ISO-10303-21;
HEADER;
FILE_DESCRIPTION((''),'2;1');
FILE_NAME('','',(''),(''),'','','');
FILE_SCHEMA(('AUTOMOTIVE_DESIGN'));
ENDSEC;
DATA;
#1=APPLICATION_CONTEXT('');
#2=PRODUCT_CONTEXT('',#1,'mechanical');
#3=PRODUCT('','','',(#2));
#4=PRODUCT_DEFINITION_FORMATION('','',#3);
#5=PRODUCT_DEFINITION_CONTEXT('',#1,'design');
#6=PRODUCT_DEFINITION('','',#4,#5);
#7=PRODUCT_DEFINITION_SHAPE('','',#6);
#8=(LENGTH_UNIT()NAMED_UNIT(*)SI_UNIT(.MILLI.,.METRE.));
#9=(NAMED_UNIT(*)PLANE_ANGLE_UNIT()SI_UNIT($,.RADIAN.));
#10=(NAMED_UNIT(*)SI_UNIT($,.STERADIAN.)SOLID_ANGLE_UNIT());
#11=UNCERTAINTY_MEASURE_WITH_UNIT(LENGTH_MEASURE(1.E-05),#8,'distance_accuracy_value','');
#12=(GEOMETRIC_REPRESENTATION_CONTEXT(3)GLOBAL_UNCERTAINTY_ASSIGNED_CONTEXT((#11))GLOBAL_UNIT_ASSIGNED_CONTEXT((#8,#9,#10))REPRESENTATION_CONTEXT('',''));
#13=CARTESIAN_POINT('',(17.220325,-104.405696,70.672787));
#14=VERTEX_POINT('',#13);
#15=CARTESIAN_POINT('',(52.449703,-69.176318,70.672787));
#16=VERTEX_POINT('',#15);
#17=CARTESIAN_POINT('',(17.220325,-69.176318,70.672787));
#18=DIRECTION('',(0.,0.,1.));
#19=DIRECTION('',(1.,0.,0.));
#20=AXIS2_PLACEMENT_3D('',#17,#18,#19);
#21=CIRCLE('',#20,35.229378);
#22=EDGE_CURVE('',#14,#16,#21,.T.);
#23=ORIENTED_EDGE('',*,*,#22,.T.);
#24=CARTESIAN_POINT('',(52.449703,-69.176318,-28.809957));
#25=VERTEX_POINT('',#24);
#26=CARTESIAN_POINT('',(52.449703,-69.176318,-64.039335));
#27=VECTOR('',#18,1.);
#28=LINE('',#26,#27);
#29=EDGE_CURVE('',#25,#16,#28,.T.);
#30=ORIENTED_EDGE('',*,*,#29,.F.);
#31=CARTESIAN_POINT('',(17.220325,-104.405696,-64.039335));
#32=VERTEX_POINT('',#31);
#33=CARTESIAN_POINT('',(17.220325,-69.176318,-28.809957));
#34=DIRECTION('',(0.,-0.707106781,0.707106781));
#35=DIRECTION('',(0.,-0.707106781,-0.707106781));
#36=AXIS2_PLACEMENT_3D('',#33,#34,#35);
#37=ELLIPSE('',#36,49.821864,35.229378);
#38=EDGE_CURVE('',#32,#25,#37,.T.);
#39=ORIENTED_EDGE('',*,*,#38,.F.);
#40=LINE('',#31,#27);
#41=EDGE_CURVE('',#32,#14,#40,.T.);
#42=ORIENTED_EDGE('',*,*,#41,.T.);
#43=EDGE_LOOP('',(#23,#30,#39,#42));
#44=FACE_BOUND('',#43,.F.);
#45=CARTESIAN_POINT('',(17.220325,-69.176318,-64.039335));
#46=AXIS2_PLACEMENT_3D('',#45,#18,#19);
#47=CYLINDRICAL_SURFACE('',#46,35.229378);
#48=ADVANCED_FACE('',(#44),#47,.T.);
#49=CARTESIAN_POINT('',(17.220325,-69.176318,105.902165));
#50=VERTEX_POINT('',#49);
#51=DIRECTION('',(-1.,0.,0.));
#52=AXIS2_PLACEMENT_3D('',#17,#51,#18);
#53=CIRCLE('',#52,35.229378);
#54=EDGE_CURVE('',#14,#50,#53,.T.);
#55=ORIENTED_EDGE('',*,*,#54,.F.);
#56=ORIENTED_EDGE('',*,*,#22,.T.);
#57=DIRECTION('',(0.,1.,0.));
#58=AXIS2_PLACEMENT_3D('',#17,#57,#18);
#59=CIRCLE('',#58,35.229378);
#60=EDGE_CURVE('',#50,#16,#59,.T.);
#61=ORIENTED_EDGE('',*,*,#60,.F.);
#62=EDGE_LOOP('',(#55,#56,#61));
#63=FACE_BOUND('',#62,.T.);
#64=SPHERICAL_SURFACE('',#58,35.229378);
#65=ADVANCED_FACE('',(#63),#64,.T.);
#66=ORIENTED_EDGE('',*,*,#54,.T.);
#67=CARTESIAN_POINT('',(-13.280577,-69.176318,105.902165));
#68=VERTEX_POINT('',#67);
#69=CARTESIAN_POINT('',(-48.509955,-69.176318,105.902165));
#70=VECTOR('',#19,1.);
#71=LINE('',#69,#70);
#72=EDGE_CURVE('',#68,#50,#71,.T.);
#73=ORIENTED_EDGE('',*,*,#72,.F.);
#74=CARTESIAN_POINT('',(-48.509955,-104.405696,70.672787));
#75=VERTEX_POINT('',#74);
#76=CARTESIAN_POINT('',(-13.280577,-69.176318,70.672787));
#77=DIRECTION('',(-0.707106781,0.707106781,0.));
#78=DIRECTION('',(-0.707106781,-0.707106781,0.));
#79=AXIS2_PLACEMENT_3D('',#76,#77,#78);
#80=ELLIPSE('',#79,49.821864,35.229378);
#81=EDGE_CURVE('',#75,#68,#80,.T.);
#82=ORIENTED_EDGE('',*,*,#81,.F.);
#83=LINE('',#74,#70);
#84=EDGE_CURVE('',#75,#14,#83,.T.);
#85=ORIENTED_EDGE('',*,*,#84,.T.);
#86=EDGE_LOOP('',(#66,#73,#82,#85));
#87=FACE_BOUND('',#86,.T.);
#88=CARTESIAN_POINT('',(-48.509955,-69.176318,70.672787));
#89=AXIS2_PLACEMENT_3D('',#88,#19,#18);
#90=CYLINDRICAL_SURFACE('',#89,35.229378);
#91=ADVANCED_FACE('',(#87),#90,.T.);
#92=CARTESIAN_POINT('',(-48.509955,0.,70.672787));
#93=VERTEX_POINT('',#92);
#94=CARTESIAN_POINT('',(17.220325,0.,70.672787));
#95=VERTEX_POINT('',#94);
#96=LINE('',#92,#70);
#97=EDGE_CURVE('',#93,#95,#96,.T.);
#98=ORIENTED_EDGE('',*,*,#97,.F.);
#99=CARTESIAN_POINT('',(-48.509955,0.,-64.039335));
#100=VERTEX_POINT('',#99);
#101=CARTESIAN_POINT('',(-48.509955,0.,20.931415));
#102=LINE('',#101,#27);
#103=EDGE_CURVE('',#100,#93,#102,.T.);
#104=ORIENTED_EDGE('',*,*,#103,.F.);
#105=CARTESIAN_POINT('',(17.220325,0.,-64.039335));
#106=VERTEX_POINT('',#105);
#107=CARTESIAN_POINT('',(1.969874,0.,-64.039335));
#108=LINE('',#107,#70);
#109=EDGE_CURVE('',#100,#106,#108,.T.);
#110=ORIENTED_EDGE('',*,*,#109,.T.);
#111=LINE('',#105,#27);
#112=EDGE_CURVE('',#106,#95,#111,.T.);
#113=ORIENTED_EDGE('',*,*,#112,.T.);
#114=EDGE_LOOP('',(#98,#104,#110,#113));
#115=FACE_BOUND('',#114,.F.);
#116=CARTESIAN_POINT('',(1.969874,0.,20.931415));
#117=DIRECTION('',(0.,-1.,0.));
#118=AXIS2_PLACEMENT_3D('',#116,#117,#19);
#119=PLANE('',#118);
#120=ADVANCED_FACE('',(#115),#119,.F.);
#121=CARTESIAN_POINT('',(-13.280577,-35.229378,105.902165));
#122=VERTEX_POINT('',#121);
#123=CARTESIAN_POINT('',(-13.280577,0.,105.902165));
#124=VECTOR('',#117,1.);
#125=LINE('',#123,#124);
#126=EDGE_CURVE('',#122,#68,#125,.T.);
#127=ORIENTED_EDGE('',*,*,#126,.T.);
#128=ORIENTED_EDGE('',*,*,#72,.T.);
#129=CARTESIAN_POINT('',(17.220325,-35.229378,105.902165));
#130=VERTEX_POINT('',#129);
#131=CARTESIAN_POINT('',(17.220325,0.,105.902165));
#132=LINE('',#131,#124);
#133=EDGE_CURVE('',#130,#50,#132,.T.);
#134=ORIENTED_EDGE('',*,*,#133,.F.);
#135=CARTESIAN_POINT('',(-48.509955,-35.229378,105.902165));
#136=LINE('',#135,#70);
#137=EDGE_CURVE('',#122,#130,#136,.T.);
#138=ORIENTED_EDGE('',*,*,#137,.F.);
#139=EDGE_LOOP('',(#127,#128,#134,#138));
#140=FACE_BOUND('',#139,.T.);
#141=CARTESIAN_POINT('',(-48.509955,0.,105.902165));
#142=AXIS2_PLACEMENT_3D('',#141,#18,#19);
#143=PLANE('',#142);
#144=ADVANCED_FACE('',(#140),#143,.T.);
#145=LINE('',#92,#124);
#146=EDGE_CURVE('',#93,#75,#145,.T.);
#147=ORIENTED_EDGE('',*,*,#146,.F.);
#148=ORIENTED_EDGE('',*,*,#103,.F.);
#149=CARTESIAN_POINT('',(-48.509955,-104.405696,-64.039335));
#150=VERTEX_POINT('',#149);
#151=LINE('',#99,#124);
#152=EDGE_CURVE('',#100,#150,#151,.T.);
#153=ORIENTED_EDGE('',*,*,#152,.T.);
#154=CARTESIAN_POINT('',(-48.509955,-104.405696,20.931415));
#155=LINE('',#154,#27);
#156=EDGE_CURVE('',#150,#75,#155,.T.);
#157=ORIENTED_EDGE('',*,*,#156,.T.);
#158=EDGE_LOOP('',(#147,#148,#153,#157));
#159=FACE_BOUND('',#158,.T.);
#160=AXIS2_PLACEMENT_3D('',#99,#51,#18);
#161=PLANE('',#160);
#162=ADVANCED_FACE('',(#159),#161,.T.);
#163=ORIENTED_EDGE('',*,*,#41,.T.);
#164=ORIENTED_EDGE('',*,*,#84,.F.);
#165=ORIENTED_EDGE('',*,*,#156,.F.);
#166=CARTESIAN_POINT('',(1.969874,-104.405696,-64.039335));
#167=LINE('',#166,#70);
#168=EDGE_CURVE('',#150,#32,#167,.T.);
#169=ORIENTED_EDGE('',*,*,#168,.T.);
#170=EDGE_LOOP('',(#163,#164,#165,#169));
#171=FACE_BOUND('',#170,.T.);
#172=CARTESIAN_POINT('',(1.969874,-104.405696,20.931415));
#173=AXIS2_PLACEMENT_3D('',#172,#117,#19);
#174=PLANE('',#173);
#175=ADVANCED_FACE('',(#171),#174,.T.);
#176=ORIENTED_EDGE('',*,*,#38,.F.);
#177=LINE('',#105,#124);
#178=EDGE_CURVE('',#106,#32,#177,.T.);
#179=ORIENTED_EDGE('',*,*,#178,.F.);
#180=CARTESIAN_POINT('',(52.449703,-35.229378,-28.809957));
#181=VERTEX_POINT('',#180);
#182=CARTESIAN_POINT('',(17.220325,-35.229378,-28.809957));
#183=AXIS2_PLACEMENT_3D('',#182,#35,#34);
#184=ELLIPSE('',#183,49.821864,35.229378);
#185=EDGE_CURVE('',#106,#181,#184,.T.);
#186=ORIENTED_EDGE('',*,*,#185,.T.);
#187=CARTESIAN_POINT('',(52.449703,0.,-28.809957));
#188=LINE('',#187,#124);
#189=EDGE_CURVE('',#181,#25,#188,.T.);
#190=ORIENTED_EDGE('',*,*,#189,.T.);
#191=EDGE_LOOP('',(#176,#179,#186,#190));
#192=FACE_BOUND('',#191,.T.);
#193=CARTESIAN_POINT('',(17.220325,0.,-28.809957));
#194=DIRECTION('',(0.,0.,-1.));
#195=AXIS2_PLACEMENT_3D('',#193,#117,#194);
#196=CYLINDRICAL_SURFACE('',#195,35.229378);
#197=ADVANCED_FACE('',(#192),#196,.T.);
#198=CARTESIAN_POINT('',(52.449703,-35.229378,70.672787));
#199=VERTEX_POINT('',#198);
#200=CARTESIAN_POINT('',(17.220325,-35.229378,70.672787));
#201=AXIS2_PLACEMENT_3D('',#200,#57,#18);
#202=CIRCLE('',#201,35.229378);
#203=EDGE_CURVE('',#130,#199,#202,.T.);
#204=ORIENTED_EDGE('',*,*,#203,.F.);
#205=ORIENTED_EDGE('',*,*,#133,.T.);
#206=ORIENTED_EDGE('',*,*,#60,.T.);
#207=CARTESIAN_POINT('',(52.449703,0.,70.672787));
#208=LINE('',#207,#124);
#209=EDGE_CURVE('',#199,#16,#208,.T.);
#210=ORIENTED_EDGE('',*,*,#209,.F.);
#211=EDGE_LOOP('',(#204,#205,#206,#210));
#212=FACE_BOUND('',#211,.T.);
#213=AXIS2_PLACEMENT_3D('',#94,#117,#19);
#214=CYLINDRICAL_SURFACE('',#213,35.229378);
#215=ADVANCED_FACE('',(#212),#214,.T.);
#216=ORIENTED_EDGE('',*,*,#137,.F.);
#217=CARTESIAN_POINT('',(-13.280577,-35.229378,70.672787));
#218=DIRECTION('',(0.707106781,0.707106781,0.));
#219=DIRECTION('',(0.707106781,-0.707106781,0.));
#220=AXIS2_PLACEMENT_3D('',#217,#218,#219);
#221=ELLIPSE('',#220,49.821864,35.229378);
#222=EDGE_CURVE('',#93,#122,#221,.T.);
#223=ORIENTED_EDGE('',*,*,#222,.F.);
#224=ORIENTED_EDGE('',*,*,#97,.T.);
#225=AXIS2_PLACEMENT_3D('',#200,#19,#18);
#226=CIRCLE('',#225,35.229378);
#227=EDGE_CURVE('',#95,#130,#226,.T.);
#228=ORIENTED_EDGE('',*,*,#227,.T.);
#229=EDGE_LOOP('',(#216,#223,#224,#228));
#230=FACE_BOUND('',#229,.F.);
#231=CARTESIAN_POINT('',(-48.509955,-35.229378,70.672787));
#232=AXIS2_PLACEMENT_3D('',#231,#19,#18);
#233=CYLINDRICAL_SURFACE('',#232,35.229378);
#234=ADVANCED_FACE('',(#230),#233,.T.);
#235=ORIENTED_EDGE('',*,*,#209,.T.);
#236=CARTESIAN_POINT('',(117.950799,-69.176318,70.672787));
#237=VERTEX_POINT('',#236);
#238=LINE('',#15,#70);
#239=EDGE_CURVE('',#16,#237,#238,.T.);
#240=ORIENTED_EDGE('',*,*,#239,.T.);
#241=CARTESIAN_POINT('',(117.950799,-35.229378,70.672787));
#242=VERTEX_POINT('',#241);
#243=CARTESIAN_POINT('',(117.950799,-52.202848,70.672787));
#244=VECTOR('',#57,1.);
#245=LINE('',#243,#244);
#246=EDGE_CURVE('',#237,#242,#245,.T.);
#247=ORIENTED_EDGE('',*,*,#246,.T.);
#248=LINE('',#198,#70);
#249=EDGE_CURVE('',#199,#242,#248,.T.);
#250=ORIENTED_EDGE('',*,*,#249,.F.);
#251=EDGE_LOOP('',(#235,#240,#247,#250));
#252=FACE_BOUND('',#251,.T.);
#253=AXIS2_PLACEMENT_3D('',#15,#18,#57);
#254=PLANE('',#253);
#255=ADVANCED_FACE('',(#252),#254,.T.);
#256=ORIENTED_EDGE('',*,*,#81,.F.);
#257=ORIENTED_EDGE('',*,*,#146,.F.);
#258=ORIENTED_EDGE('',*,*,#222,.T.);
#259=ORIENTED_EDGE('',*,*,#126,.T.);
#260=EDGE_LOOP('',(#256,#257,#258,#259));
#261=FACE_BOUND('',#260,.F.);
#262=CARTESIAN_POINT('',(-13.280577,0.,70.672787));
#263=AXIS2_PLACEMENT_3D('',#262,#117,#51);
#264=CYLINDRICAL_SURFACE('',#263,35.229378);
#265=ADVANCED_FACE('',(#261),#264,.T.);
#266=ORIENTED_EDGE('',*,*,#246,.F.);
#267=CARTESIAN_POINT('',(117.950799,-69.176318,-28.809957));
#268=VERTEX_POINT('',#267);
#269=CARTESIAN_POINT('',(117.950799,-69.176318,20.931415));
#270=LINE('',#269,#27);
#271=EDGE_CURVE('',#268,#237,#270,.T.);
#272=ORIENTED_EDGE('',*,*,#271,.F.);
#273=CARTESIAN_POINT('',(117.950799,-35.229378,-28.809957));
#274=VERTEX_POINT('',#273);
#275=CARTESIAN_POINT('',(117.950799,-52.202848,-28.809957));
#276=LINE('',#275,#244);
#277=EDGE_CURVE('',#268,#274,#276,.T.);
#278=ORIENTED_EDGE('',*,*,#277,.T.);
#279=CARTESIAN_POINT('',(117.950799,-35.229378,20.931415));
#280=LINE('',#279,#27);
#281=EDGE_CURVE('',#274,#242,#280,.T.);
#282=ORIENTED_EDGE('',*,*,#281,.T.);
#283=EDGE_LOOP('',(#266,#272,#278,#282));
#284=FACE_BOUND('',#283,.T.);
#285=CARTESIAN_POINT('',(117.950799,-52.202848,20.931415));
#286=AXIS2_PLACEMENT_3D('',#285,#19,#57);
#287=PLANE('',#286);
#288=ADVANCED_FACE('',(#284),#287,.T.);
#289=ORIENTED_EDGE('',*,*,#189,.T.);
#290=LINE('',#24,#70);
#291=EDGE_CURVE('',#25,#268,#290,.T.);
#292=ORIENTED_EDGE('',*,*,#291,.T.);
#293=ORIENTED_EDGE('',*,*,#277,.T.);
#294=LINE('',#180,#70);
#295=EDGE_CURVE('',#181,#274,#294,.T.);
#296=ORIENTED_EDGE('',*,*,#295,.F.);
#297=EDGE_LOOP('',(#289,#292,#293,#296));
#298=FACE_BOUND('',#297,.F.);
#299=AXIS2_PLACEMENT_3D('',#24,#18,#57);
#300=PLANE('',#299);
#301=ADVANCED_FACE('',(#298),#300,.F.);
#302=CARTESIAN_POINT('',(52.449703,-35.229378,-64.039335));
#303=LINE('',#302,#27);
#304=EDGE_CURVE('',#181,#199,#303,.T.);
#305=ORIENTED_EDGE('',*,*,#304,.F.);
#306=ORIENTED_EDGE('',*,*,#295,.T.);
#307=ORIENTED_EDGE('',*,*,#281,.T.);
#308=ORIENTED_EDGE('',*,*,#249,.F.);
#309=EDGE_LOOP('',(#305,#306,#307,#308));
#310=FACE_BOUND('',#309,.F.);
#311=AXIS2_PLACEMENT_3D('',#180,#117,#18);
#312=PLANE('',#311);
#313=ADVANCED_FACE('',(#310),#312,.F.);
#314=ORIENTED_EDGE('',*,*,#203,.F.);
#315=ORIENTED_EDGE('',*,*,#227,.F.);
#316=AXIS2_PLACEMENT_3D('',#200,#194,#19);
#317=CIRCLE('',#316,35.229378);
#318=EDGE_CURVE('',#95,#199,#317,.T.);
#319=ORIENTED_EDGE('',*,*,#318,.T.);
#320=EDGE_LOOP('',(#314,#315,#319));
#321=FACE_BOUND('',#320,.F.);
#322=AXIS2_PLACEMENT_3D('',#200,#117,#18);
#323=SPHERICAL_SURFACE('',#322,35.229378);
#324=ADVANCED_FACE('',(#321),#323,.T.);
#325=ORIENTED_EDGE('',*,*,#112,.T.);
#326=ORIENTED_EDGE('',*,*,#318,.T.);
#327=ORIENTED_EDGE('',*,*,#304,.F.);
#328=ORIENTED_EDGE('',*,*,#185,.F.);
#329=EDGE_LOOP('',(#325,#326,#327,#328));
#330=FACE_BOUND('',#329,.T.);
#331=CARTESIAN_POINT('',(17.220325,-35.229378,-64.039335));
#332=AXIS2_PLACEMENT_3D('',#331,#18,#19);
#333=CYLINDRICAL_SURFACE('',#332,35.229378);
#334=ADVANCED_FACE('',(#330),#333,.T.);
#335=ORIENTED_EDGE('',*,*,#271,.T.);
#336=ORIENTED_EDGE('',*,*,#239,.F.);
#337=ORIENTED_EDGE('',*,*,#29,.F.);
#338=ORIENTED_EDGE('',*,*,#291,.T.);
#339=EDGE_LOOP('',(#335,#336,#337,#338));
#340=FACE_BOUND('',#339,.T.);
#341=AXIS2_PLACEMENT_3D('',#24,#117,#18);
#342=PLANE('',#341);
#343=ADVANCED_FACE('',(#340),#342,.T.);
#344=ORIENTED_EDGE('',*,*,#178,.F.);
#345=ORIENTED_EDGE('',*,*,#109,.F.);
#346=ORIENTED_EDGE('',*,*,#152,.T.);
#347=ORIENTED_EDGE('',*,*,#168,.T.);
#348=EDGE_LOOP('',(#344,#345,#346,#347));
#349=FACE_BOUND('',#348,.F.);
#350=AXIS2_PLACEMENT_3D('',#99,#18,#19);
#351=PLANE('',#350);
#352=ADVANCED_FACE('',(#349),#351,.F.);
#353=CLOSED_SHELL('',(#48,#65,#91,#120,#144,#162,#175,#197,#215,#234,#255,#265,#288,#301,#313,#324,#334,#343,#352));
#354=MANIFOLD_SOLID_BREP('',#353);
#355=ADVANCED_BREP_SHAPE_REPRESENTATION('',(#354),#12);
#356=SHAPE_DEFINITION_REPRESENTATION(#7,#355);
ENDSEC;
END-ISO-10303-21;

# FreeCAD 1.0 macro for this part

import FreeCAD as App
import Part
import Sketcher
from FreeCAD import Vector


def edges_at(feature, points):
    """Names of the edges that pass closest to the given points."""
    edges = feature.Shape.Edges
    near = lambda p: min(range(len(edges)), key=lambda i: edges[i].distToShape(Part.Vertex(*p))[0])
    return sorted({f"Edge{near(p) + 1}" for p in points})

doc = App.newDocument("Part")
body = doc.addObject("PartDesign::Body", "Body")

# Sketch on XZ plane
sketch1 = body.newObject("Sketcher::SketchObject", "Sketch")
sketch1.AttachmentSupport = (doc.getObject("XZ_Plane"), [""])
sketch1.MapMode = "FlatFace"
sketch1.addGeometry(Part.LineSegment(Vector(-48.509955, 105.902165, 0), Vector(-48.509955, -64.039335, 0)), False)
sketch1.addGeometry(Part.LineSegment(Vector(-48.509955, -64.039335, 0), Vector(52.449703, -64.039335, 0)), False)
sketch1.addGeometry(Part.LineSegment(Vector(52.449703, -64.039335, 0), Vector(52.449703, 105.902165, 0)), False)
sketch1.addGeometry(Part.LineSegment(Vector(52.449703, 105.902165, 0), Vector(-48.509955, 105.902165, 0)), False)
sketch1.addConstraint(Sketcher.Constraint("Coincident", 0, 2, 1, 1))
sketch1.addConstraint(Sketcher.Constraint("Coincident", 1, 2, 2, 1))
sketch1.addConstraint(Sketcher.Constraint("Coincident", 2, 2, 3, 1))
sketch1.addConstraint(Sketcher.Constraint("Coincident", 3, 2, 0, 1))
sketch1.addConstraint(Sketcher.Constraint("Vertical", 0))
sketch1.addConstraint(Sketcher.Constraint("Horizontal", 1))
sketch1.addConstraint(Sketcher.Constraint("Vertical", 2))
sketch1.addConstraint(Sketcher.Constraint("Horizontal", 3))
sketch1.addConstraint(Sketcher.Constraint("DistanceY", 0, 2, 0, 1, 169.9415))
sketch1.addConstraint(Sketcher.Constraint("DistanceX", 1, 1, 1, 2, 100.959658))
sketch1.addConstraint(Sketcher.Constraint("DistanceX", 0, 2, -1, 1, 48.509955))
sketch1.addConstraint(Sketcher.Constraint("DistanceY", 0, 2, -1, 1, 64.039335))
pad1 = body.newObject("PartDesign::Pad", "Pad")
pad1.Profile = sketch1
pad1.Length = 104.405696
doc.recompute()

fillet = body.newObject("PartDesign::Fillet", "Fillet")
fillet.Base = (pad1, edges_at(pad1, [
    (52.45, -52.203, 105.902),
    (-48.51, -52.203, 105.902),
    (1.97, 0, 105.902),
    (1.97, -104.406, 105.902),
    (52.45, -52.203, -64.039),
    (52.45, 0, 20.931),
    (52.45, -104.406, 20.931),
]))
fillet.Radius = 35.229378

# Sketch on YZ plane
sketch2 = body.newObject("Sketcher::SketchObject", "Sketch001")
sketch2.AttachmentSupport = (doc.getObject("YZ_Plane"), [""])
sketch2.MapMode = "FlatFace"
sketch2.AttachmentOffset = App.Placement(Vector(0, 0, 52.449703), App.Rotation())
sketch2.addGeometry(Part.LineSegment(Vector(-69.176318, 70.672787, 0), Vector(-69.176318, -28.809957, 0)), False)
sketch2.addGeometry(Part.LineSegment(Vector(-69.176318, -28.809957, 0), Vector(-35.229378, -28.809957, 0)), False)
sketch2.addGeometry(Part.LineSegment(Vector(-35.229378, -28.809957, 0), Vector(-35.229378, 70.672787, 0)), False)
sketch2.addGeometry(Part.LineSegment(Vector(-35.229378, 70.672787, 0), Vector(-69.176318, 70.672787, 0)), False)
sketch2.addConstraint(Sketcher.Constraint("Coincident", 0, 2, 1, 1))
sketch2.addConstraint(Sketcher.Constraint("Coincident", 1, 2, 2, 1))
sketch2.addConstraint(Sketcher.Constraint("Coincident", 2, 2, 3, 1))
sketch2.addConstraint(Sketcher.Constraint("Coincident", 3, 2, 0, 1))
sketch2.addConstraint(Sketcher.Constraint("Vertical", 0))
sketch2.addConstraint(Sketcher.Constraint("Horizontal", 1))
sketch2.addConstraint(Sketcher.Constraint("Vertical", 2))
sketch2.addConstraint(Sketcher.Constraint("Horizontal", 3))
sketch2.addConstraint(Sketcher.Constraint("DistanceX", 1, 1, 1, 2, 33.94694))
sketch2.addConstraint(Sketcher.Constraint("DistanceY", 0, 2, 0, 1, 99.482744))
sketch2.addConstraint(Sketcher.Constraint("DistanceX", 0, 2, -1, 1, 69.176318))
sketch2.addConstraint(Sketcher.Constraint("DistanceY", 0, 2, -1, 1, 28.809957))
pad2 = body.newObject("PartDesign::Pad", "Pad001")
pad2.Profile = sketch2
pad2.Length = 65.501096

doc.recompute()
